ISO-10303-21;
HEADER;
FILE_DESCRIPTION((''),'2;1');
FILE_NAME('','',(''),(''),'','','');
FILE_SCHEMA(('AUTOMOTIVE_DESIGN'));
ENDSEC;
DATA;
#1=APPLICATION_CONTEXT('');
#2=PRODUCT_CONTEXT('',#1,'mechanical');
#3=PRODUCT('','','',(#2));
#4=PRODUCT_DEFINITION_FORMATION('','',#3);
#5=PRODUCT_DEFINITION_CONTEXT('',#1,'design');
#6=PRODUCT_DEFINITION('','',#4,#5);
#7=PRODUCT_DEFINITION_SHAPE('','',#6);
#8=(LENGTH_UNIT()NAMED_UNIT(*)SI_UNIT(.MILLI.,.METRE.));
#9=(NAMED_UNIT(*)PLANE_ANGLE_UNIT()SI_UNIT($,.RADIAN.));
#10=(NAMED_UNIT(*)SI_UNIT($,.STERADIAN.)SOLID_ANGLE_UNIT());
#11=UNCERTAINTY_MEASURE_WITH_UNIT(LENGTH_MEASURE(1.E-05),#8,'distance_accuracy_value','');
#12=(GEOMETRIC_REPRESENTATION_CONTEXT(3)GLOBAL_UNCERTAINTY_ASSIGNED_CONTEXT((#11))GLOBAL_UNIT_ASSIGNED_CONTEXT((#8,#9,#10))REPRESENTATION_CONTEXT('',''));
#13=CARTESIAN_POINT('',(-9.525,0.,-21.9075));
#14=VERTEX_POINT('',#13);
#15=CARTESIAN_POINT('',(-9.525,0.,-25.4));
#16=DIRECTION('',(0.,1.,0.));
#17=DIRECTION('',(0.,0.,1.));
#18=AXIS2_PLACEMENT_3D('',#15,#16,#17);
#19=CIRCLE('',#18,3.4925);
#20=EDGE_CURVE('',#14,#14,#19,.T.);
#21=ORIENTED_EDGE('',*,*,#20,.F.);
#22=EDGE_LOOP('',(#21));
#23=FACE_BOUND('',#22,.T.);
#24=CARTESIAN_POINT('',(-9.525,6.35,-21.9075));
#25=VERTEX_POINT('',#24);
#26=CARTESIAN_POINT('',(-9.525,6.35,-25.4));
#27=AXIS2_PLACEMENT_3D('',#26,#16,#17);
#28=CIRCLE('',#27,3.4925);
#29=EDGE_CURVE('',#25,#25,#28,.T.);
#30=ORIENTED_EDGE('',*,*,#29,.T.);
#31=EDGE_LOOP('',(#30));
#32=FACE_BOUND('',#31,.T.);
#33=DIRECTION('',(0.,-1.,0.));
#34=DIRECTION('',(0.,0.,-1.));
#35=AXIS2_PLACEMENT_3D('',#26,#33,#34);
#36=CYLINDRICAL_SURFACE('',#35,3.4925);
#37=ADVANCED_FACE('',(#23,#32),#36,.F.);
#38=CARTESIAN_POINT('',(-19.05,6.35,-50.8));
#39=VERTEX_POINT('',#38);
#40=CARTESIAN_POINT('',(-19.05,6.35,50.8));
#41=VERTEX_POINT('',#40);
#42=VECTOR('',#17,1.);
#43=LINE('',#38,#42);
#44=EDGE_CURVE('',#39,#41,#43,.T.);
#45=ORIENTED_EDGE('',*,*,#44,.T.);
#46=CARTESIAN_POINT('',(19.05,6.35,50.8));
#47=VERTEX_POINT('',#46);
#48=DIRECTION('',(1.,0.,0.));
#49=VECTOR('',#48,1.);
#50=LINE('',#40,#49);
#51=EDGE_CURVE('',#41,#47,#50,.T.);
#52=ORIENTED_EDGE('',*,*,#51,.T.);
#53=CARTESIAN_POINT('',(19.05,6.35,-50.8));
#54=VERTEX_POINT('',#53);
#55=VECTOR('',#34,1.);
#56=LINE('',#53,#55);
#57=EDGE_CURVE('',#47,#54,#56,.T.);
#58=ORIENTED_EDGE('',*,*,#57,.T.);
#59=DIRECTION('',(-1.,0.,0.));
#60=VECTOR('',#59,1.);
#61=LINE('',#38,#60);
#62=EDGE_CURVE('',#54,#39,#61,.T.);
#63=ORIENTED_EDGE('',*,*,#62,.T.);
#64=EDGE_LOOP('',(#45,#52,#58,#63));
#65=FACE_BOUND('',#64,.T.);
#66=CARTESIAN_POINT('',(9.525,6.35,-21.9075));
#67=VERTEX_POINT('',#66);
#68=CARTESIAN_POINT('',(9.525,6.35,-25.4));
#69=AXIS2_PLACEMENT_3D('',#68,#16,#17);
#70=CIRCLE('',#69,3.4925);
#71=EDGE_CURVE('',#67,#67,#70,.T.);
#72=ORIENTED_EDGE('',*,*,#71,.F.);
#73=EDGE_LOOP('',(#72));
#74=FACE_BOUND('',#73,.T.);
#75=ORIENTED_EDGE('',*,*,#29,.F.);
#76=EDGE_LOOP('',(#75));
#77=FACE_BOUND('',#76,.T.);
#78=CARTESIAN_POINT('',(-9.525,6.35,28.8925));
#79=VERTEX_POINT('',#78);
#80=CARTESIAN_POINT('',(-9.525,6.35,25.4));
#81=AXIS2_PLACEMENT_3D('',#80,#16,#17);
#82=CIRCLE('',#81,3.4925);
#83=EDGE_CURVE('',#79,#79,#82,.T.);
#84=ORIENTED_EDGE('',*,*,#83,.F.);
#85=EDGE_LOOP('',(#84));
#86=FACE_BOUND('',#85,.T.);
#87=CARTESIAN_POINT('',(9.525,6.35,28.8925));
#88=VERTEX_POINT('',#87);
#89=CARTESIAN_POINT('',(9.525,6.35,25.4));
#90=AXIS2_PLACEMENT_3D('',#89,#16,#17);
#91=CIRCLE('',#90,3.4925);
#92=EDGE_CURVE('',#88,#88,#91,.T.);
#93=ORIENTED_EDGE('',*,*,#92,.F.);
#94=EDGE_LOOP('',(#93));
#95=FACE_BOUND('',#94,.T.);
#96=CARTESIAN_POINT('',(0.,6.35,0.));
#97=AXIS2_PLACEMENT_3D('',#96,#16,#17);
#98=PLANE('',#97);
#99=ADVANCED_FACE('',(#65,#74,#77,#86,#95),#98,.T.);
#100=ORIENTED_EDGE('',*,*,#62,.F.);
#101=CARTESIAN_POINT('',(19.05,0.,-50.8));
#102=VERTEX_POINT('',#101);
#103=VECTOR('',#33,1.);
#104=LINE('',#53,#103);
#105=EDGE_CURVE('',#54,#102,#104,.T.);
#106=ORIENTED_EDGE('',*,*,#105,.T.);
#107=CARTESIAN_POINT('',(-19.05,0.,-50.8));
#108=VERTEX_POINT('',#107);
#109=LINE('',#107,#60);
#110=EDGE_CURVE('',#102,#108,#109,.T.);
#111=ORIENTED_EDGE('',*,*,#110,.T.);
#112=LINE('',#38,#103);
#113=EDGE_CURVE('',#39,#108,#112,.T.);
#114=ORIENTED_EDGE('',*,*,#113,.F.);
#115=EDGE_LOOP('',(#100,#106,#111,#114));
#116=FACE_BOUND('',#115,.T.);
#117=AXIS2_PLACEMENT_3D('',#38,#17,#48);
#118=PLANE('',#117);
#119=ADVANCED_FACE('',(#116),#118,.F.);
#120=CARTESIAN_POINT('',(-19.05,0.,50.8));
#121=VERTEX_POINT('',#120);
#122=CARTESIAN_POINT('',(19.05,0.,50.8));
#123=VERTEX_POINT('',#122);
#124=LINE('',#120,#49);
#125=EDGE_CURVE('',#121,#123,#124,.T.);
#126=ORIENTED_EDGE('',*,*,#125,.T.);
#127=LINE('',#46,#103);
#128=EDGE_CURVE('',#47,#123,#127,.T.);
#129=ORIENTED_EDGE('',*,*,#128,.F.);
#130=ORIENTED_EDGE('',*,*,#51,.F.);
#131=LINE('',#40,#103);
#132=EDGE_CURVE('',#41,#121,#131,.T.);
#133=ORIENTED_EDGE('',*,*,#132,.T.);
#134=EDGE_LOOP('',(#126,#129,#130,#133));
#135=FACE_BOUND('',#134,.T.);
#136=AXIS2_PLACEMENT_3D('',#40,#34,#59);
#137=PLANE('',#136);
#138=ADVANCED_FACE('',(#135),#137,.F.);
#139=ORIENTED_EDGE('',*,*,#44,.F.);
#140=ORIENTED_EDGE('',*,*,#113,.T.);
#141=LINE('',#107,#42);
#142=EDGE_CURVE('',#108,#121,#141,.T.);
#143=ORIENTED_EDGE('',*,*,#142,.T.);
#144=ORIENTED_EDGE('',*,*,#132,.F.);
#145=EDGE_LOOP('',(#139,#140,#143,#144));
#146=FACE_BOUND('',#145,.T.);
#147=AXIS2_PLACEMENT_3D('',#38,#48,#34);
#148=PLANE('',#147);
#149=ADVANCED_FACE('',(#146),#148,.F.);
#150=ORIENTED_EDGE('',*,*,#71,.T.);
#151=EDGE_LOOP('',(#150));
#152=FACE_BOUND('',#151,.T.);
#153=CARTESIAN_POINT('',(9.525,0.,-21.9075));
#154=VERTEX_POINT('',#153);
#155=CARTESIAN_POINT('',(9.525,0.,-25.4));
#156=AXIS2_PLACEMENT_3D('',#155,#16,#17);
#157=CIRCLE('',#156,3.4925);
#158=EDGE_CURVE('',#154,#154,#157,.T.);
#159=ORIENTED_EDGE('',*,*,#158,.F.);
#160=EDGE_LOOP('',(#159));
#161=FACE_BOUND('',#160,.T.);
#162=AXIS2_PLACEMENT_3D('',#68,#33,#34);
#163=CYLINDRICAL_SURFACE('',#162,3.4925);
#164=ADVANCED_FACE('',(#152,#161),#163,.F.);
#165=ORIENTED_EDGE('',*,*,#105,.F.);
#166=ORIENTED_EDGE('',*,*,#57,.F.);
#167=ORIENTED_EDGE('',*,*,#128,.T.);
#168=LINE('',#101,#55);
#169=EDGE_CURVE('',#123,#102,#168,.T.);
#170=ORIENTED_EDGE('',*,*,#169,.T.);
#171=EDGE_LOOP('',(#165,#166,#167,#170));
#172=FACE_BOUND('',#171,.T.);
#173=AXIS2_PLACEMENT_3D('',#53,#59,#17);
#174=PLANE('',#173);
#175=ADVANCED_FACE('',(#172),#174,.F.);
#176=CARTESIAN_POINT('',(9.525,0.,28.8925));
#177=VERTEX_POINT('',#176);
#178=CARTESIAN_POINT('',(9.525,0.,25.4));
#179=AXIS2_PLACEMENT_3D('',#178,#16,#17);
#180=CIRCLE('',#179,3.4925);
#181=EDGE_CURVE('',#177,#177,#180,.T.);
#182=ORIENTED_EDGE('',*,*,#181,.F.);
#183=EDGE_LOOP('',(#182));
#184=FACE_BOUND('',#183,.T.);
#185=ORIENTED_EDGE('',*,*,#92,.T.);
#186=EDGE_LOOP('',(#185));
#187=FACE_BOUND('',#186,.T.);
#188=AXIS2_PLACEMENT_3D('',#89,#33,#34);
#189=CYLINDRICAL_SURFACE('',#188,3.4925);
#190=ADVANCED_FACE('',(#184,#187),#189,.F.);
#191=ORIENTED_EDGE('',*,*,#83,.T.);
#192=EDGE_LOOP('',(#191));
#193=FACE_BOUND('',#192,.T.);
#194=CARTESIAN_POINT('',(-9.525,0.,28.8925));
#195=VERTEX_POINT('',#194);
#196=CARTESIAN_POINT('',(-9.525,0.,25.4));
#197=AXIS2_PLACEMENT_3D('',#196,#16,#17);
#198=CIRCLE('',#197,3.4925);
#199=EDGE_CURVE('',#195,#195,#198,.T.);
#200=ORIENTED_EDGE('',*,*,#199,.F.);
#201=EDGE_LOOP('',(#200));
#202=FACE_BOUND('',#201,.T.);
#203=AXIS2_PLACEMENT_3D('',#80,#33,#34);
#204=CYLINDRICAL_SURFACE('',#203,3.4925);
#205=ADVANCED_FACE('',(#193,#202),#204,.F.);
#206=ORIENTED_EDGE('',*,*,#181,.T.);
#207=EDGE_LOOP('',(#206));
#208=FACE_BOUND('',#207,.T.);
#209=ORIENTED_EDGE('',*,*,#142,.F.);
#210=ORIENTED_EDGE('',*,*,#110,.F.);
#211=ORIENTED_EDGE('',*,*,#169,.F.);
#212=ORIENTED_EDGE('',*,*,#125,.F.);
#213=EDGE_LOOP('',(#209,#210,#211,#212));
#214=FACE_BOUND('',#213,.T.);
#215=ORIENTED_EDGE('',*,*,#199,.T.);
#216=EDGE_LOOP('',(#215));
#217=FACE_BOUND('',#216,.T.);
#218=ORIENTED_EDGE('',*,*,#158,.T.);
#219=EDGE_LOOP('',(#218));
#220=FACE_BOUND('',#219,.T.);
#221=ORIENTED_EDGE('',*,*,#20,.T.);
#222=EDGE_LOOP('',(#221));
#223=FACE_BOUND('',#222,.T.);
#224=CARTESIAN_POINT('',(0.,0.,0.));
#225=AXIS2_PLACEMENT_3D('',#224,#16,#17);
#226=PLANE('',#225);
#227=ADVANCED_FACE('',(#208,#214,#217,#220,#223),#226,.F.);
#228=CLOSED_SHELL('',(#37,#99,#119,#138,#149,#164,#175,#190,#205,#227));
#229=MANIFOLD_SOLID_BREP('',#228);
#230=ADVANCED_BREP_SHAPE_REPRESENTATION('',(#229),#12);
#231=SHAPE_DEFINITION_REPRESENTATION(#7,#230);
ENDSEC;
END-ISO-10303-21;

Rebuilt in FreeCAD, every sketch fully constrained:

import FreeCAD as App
import Part
import Sketcher
Q = App.Units.Quantity

doc = App.newDocument("Part")
body = doc.addObject("PartDesign::Body", "Body")

# Sketch on XZ plane
sketch1 = doc.addObject("Sketcher::SketchObject", "Sketch")
body.addObject(sketch1)
sketch1.AttachmentSupport = (doc.XZ_Plane, [""])
sketch1.MapMode = "FlatFace"
sketch1.addGeometry([
    Part.LineSegment(App.Vector(-19.1, -50.8, 0), App.Vector(-19.1, 50.8, 0)),  # 0
    Part.LineSegment(App.Vector(-19.1, 50.8, 0), App.Vector(19.1, 50.8, 0)),  # 1
    Part.LineSegment(App.Vector(19.1, 50.8, 0), App.Vector(19.1, -50.8, 0)),  # 2
    Part.LineSegment(App.Vector(19.1, -50.8, 0), App.Vector(-19.1, -50.8, 0)),  # 3
    Part.Circle(App.Vector(-9.5, 25.4, 0), App.Vector(0, 0, 1), 3.5),  # 4
    Part.Circle(App.Vector(9.5, 25.4, 0), App.Vector(0, 0, 1), 3.5),  # 5
    Part.Circle(App.Vector(-9.5, -25.4, 0), App.Vector(0, 0, 1), 3.5),  # 6
    Part.Circle(App.Vector(9.5, -25.4, 0), App.Vector(0, 0, 1), 3.5),  # 7
], False)
sketch1.addConstraint([
    Sketcher.Constraint("Coincident", 0, 2, 1, 1),
    Sketcher.Constraint("Coincident", 1, 2, 2, 1),
    Sketcher.Constraint("Coincident", 2, 2, 3, 1),
    Sketcher.Constraint("Coincident", 3, 2, 0, 1),
    Sketcher.Constraint("Vertical", 0),
    Sketcher.Constraint("Horizontal", 1),
    Sketcher.Constraint("Vertical", 2),
    Sketcher.Constraint("Horizontal", 3),
    Sketcher.Constraint("Equal", 4, 5),
    Sketcher.Constraint("Equal", 5, 6),
    Sketcher.Constraint("Equal", 6, 7),
    Sketcher.Constraint("Symmetric", 5, 3, 6, 3, -1, 1),
    Sketcher.Constraint("Symmetric", 4, 3, 7, 3, -1, 1),
    Sketcher.Constraint("Symmetric", 0, 2, 2, 2, -1, 1),
    Sketcher.Constraint("Symmetric", 4, 3, 5, 3, -2),
    Sketcher.Constraint("DistanceY", 0, 1, 0, 2, Q("4 in")),
    Sketcher.Constraint("Diameter", 4, Q("0.275 in")),
    Sketcher.Constraint("DistanceX", 1, 1, 1, 2, Q("1.5 in")),
    Sketcher.Constraint("DistanceY", -1, 1, 4, 3, Q("1 in")),
    Sketcher.Constraint("DistanceX", 4, 3, 5, 3, Q("0.75 in")),
])
pad1 = doc.addObject("PartDesign::Pad", "Pad")
body.addObject(pad1)
pad1.Profile = sketch1
pad1.Length = Q("0.25 in")
pad1.Reversed = True

doc.recompute()
